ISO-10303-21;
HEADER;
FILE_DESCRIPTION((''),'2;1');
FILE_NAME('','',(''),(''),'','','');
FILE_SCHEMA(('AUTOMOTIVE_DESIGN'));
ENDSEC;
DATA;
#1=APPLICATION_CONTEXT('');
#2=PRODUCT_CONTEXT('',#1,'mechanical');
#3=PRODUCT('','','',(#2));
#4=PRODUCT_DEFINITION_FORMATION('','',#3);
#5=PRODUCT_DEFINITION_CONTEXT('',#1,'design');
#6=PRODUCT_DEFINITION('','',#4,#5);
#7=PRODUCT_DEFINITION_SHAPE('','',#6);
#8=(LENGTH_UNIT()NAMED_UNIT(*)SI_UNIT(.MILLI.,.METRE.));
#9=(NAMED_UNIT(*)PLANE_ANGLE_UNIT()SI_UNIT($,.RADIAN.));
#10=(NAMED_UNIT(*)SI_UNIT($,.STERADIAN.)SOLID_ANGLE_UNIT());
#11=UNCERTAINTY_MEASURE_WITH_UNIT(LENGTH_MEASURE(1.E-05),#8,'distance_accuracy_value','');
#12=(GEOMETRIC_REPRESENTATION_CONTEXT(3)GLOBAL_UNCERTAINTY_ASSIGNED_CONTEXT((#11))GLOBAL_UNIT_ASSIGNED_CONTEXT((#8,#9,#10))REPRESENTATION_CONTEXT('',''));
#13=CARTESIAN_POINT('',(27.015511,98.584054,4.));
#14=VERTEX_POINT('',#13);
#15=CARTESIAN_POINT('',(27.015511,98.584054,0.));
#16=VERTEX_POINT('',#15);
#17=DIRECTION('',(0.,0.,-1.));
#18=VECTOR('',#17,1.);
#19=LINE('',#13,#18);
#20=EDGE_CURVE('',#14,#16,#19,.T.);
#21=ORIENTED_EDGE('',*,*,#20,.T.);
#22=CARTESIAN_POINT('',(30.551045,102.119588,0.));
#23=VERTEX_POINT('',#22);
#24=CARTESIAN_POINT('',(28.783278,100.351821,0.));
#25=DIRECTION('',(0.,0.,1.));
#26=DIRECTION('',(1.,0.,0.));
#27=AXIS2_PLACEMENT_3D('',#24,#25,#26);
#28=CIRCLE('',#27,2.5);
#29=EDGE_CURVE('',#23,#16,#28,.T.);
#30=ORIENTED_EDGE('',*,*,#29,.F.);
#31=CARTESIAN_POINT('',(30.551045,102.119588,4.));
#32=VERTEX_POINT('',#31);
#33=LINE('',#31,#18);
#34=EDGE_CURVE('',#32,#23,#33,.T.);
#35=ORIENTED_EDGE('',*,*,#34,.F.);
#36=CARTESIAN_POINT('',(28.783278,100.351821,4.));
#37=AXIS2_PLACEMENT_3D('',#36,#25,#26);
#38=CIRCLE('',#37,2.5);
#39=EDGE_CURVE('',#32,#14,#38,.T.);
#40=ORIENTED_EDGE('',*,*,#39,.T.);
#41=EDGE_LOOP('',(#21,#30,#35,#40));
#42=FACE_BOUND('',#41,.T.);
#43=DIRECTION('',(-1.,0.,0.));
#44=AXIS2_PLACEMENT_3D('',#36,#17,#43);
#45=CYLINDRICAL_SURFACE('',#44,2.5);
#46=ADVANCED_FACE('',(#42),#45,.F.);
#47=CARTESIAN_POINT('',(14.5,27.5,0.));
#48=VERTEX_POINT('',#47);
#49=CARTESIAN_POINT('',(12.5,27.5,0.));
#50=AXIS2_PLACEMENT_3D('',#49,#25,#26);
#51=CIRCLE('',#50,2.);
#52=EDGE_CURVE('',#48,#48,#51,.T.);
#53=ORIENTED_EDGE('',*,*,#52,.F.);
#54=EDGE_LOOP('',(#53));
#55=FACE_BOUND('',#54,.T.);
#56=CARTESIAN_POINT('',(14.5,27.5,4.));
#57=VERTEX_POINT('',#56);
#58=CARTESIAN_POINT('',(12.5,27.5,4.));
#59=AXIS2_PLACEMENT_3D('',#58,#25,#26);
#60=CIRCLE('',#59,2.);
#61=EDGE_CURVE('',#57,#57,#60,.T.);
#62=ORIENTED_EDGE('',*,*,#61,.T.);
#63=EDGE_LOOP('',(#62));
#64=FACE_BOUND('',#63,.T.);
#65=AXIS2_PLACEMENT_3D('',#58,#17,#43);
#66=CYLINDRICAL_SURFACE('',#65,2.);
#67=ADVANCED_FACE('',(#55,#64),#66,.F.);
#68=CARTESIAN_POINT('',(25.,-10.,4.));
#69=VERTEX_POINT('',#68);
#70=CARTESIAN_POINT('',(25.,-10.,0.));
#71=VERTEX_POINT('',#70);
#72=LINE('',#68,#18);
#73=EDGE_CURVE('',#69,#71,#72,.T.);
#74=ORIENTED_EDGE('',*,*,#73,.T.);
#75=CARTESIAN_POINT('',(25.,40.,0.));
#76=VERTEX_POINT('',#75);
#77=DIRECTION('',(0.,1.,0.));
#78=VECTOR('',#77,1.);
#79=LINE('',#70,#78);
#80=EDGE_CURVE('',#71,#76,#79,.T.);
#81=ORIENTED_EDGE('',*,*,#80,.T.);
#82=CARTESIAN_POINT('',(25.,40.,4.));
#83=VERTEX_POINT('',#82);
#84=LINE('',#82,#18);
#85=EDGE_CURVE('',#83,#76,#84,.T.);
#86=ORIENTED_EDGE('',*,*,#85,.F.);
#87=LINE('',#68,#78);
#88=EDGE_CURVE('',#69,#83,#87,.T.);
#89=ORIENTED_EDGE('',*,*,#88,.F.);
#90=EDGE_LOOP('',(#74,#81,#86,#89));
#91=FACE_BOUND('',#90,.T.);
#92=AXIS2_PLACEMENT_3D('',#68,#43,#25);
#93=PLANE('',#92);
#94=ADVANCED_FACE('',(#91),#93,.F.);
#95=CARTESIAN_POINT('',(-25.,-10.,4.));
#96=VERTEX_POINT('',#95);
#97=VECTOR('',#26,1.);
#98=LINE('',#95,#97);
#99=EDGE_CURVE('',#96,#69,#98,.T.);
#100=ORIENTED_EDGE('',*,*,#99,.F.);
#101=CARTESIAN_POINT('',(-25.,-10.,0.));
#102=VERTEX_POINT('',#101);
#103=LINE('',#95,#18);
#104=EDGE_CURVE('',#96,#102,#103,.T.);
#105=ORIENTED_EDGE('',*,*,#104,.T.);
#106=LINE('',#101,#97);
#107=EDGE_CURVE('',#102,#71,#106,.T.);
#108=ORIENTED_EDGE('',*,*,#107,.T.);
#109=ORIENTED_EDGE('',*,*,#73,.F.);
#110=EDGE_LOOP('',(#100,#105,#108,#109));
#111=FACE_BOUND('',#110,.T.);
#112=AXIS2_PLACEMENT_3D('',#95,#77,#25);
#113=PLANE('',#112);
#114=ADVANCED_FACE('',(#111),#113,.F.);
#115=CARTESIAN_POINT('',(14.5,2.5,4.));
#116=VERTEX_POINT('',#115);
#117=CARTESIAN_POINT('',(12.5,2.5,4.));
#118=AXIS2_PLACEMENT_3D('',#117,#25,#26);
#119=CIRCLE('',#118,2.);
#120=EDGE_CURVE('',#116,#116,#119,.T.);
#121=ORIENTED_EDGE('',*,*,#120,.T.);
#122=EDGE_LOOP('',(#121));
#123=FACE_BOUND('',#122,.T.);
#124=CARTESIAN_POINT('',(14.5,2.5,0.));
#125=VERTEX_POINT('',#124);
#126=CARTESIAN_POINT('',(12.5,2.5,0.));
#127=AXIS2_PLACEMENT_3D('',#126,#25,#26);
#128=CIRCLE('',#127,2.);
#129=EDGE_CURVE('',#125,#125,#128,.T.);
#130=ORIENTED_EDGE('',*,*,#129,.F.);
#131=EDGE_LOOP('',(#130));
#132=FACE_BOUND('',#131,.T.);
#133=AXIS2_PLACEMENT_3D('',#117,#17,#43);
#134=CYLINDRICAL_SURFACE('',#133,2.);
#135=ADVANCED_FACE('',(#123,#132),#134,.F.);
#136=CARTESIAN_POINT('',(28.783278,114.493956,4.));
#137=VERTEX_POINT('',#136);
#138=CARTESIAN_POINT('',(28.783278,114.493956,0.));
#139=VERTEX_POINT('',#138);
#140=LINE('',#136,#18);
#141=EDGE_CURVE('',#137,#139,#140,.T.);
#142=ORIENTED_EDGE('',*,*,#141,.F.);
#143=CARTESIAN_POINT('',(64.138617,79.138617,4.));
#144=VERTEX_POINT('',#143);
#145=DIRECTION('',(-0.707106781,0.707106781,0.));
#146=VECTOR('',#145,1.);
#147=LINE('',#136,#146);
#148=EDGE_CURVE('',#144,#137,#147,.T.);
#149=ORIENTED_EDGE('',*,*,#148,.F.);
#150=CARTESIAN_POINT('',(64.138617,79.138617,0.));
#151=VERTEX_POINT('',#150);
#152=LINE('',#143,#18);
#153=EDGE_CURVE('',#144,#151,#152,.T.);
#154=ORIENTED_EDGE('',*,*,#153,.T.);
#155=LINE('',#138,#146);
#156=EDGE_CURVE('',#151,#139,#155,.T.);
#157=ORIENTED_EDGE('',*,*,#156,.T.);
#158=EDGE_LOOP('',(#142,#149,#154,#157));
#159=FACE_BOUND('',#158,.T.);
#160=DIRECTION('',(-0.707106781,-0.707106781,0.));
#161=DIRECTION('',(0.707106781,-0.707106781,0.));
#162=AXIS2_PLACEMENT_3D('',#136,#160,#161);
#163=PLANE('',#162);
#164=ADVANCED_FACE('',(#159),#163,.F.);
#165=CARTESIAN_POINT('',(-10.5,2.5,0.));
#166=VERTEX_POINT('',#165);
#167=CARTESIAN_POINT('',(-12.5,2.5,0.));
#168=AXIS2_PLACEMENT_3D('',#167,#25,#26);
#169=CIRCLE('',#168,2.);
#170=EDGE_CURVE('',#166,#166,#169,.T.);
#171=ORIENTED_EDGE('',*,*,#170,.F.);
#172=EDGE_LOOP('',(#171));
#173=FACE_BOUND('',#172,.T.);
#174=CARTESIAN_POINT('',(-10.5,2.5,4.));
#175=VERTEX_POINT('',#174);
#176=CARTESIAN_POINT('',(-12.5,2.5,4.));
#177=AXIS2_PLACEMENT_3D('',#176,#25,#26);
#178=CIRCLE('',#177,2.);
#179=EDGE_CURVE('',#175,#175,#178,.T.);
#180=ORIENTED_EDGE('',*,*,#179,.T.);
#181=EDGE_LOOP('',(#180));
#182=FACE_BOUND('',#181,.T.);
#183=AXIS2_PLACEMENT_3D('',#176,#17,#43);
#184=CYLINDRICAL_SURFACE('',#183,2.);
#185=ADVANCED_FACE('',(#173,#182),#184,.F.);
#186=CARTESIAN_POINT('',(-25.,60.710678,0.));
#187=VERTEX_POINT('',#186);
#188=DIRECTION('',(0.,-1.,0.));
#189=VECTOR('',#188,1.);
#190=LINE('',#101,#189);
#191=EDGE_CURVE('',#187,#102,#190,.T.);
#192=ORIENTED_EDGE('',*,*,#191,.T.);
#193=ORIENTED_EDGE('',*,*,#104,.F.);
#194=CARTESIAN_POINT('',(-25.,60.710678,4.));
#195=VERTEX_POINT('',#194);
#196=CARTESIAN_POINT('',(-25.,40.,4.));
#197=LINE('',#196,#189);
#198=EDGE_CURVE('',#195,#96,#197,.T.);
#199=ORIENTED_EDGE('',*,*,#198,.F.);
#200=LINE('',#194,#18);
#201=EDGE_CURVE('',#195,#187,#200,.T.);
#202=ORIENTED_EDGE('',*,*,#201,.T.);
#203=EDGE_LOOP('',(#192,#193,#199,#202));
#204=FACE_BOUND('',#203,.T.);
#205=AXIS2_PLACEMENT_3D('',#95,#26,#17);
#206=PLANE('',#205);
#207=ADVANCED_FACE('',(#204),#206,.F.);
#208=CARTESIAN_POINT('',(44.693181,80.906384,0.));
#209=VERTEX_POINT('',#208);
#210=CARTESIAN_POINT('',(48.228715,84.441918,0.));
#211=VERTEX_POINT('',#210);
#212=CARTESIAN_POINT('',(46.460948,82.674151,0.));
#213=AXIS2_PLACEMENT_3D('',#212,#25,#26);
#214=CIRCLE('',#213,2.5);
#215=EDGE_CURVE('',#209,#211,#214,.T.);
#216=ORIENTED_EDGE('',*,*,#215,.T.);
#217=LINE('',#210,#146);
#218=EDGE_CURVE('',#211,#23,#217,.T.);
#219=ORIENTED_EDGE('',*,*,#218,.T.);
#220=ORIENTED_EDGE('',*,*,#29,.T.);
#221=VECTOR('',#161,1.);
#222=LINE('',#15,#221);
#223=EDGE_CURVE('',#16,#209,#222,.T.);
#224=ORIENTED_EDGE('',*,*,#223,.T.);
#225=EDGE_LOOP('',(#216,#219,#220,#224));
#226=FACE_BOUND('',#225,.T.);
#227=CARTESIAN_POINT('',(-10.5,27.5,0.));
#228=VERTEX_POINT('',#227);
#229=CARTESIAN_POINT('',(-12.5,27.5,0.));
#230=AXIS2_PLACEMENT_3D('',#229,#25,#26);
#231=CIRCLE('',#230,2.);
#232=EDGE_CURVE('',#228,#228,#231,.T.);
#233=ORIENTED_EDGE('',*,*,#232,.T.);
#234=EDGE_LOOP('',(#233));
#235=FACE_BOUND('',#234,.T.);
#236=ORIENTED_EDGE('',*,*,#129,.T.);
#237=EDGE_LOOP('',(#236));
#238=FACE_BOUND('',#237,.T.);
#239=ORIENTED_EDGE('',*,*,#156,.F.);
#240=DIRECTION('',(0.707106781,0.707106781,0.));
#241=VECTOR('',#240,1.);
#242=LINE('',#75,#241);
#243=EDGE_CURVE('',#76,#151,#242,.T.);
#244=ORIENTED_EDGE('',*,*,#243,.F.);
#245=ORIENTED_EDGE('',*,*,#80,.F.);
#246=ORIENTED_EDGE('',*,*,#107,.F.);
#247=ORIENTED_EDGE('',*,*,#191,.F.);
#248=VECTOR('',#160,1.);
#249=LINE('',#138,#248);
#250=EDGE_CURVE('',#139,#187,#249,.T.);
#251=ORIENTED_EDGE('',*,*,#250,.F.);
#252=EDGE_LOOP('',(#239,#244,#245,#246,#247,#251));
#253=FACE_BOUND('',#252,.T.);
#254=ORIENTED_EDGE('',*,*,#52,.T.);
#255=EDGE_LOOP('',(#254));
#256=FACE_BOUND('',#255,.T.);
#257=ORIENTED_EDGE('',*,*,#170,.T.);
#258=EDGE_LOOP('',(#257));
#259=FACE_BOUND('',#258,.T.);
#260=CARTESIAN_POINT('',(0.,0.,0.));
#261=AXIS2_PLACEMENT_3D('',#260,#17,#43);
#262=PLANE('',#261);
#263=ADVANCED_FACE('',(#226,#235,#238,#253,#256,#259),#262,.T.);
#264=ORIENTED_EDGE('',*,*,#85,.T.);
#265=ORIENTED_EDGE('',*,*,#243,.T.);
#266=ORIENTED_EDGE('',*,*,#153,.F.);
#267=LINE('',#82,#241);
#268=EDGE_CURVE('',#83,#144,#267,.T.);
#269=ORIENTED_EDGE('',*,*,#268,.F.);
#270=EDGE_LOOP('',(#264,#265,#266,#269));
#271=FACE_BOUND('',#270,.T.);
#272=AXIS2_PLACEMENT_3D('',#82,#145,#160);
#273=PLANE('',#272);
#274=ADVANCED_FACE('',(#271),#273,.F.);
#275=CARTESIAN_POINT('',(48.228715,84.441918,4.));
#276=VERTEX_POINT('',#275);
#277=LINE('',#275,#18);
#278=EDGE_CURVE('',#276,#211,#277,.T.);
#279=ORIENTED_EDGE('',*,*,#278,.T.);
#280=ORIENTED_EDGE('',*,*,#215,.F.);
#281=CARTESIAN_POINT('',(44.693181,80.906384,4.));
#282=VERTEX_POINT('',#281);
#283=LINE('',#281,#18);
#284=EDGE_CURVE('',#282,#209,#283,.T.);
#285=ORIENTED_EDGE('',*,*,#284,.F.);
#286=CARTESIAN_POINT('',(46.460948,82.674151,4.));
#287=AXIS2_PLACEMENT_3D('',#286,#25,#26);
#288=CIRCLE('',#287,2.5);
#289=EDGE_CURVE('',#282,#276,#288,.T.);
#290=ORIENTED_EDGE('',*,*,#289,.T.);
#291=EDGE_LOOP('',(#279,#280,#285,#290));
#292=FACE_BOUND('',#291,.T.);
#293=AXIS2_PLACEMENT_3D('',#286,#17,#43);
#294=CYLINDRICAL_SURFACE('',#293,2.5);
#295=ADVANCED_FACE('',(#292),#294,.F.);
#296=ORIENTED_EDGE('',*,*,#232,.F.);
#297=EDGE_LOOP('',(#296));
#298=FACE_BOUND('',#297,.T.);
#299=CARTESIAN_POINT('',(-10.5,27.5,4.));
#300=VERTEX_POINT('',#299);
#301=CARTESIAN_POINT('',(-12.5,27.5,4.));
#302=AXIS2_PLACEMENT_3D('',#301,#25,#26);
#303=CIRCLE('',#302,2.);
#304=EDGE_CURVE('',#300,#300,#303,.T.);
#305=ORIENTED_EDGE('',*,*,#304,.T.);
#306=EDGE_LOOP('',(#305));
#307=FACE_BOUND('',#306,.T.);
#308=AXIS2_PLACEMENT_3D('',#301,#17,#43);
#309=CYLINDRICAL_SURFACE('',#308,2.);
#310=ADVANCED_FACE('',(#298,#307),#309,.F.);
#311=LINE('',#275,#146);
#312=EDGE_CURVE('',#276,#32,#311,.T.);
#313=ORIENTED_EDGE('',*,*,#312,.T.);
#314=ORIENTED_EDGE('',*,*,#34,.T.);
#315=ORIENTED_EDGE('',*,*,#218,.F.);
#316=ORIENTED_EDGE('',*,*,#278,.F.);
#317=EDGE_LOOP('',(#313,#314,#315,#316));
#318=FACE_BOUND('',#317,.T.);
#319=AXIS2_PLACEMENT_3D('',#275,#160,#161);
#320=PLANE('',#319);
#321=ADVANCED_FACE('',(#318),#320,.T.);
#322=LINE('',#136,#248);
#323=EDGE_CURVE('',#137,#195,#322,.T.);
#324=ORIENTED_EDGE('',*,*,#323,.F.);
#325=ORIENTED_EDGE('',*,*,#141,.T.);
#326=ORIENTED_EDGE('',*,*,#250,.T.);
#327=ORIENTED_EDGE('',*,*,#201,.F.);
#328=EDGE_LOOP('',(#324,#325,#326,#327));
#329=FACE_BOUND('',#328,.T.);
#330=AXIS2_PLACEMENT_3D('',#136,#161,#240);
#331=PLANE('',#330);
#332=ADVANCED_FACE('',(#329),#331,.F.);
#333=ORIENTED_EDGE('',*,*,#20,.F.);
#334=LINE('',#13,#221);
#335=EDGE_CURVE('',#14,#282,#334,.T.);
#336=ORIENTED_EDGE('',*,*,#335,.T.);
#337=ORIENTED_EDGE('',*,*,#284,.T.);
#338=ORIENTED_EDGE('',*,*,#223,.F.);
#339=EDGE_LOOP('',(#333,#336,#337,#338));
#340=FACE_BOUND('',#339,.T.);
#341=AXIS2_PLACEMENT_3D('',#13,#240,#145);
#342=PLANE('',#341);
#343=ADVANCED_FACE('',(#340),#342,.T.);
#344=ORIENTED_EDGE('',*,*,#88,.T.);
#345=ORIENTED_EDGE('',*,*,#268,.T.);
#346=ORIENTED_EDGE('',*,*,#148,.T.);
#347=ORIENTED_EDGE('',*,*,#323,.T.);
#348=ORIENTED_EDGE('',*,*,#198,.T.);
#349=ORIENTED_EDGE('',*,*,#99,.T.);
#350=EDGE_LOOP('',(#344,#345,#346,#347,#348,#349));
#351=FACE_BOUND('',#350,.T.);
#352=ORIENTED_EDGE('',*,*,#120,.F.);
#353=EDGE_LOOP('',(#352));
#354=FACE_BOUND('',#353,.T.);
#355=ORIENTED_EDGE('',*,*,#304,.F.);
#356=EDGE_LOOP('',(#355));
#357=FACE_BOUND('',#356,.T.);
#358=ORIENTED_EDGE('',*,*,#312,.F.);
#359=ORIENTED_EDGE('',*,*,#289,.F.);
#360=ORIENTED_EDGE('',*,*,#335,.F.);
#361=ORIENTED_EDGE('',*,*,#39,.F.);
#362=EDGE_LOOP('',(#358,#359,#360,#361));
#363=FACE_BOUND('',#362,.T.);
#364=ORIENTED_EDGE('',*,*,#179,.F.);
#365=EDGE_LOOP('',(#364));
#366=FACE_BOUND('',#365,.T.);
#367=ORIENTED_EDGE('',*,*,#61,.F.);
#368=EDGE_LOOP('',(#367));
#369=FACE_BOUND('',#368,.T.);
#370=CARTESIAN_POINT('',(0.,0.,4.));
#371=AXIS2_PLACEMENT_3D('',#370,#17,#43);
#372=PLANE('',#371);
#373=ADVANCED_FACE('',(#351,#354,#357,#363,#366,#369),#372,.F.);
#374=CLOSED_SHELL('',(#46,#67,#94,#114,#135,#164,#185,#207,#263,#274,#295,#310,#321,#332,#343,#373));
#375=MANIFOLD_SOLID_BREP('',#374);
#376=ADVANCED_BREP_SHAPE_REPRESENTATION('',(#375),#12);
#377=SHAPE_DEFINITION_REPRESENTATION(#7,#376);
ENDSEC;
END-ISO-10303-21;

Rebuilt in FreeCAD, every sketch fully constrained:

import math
import FreeCAD as App
import Part
import Sketcher
from FreeCAD import Vector
Q = App.Units.Quantity


def add_polygon(sketch, points):
    """Adds a closed chain of lines whose ends are joined by coincident constraints."""
    first, n = sketch.GeometryCount, len(points)
    for a, b in zip(points, points[1:] + points[:1]):
        sketch.addGeometry(Part.LineSegment(App.Vector(*a, 0), App.Vector(*b, 0)), False)
    for i in range(n):
        sketch.addConstraint(Sketcher.Constraint("Coincident", first + i, 2, first + (i + 1) % n, 1))

doc = App.newDocument("Part")
body = doc.addObject("PartDesign::Body", "Body")

# Sketch on XY plane
sketch1 = body.newObject("Sketcher::SketchObject", "Sketch")
sketch1.AttachmentSupport = (doc.getObject("XY_Plane"), [""])
sketch1.MapMode = "FlatFace"
add_polygon(sketch1, [(64.138617, 79.138617), (28.783278, 114.493956), (-25, 60.710678), (-25, -10), (25, -10), (25, 40)])  # lines 0-5
sketch1.addGeometry(Part.Circle(Vector(12.5, 2.5, 0), Vector(0, 0, 1), 2), False)  # 6
sketch1.addGeometry(Part.Circle(Vector(-12.5, 2.5, 0), Vector(0, 0, 1), 2), False)  # 7
sketch1.addGeometry(Part.Circle(Vector(12.5, 27.5, 0), Vector(0, 0, 1), 2), False)  # 8
sketch1.addGeometry(Part.Circle(Vector(-12.5, 27.5, 0), Vector(0, 0, 1), 2), False)  # 9
sketch1.addGeometry(Part.ArcOfCircle(Part.Circle(Vector(46.460948, 82.674151, 0), Vector(0, 0, 1), 2.5), math.radians(-135), math.radians(45)), False)  # 10
sketch1.addGeometry(Part.LineSegment(Vector(44.693181, 80.906384, 0), Vector(27.015511, 98.584054, 0)), False)  # 11
sketch1.addGeometry(Part.ArcOfCircle(Part.Circle(Vector(28.783278, 100.351821, 0), Vector(0, 0, 1), 2.5), math.radians(45), math.radians(225)), False)  # 12
sketch1.addGeometry(Part.LineSegment(Vector(30.551045, 102.119588, 0), Vector(48.228715, 84.441918, 0)), False)  # 13
sketch1.addConstraint([
    Sketcher.Constraint("Tangent", 10, 1, 11, 1),
    Sketcher.Constraint("Tangent", 11, 2, 12, 2),
    Sketcher.Constraint("Tangent", 12, 1, 13, 1),
    Sketcher.Constraint("Tangent", 13, 2, 10, 2),
    Sketcher.Constraint("Vertical", 2),
    Sketcher.Constraint("Horizontal", 3),
    Sketcher.Constraint("Vertical", 4),
    Sketcher.Constraint("Equal", 6, 7),
    Sketcher.Constraint("Equal", 7, 8),
    Sketcher.Constraint("Equal", 8, 9),
    Sketcher.Constraint("Equal", 10, 12),
    Sketcher.Constraint("Symmetric", 6, 3, 7, 3, -2),
    Sketcher.Constraint("Symmetric", 8, 3, 9, 3, -2),
    Sketcher.Constraint("Perpendicular", 0, 1),
    Sketcher.Constraint("Parallel", 1, 5),
    Sketcher.Constraint("Perpendicular", 5, 11),
    Sketcher.Constraint("Vertical", 6, 3, 8, 3),
    Sketcher.Constraint("Vertical", 12, 3, 0, 2),
    Sketcher.Constraint("Equal", 3, 4),
    Sketcher.Constraint("Diameter", 6, 4.0),
    Sketcher.Constraint("Radius", 10, 2.5),
    Sketcher.Constraint("DistanceX", 3, 1, 3, 2, 50.0),
    Sketcher.Constraint("Angle", 0, Q("135 deg")),
    Sketcher.Constraint("Distance", 0, 50.0),
    Sketcher.Constraint("Distance", 11, 25.0),
    Sketcher.Constraint("DistanceX", 1, 2, -1, 1, 25.0),
    Sketcher.Constraint("DistanceY", 2, 2, -1, 1, 10.0),
    Sketcher.Constraint("DistanceX", 7, 3, 6, 3, 25.0),
    Sketcher.Constraint("DistanceY", 6, 3, 8, 3, 25.0),
    Sketcher.Constraint("DistanceY", -1, 1, 6, 3, 2.5),
    Sketcher.Constraint("DistanceY", 5, 2, 13, 2, 5.303301),
    Sketcher.Constraint("Distance", 1, 76.061041),
])
pad1 = body.newObject("PartDesign::Pad", "Pad")
pad1.Profile = sketch1
pad1.Length = 4

doc.recompute()
